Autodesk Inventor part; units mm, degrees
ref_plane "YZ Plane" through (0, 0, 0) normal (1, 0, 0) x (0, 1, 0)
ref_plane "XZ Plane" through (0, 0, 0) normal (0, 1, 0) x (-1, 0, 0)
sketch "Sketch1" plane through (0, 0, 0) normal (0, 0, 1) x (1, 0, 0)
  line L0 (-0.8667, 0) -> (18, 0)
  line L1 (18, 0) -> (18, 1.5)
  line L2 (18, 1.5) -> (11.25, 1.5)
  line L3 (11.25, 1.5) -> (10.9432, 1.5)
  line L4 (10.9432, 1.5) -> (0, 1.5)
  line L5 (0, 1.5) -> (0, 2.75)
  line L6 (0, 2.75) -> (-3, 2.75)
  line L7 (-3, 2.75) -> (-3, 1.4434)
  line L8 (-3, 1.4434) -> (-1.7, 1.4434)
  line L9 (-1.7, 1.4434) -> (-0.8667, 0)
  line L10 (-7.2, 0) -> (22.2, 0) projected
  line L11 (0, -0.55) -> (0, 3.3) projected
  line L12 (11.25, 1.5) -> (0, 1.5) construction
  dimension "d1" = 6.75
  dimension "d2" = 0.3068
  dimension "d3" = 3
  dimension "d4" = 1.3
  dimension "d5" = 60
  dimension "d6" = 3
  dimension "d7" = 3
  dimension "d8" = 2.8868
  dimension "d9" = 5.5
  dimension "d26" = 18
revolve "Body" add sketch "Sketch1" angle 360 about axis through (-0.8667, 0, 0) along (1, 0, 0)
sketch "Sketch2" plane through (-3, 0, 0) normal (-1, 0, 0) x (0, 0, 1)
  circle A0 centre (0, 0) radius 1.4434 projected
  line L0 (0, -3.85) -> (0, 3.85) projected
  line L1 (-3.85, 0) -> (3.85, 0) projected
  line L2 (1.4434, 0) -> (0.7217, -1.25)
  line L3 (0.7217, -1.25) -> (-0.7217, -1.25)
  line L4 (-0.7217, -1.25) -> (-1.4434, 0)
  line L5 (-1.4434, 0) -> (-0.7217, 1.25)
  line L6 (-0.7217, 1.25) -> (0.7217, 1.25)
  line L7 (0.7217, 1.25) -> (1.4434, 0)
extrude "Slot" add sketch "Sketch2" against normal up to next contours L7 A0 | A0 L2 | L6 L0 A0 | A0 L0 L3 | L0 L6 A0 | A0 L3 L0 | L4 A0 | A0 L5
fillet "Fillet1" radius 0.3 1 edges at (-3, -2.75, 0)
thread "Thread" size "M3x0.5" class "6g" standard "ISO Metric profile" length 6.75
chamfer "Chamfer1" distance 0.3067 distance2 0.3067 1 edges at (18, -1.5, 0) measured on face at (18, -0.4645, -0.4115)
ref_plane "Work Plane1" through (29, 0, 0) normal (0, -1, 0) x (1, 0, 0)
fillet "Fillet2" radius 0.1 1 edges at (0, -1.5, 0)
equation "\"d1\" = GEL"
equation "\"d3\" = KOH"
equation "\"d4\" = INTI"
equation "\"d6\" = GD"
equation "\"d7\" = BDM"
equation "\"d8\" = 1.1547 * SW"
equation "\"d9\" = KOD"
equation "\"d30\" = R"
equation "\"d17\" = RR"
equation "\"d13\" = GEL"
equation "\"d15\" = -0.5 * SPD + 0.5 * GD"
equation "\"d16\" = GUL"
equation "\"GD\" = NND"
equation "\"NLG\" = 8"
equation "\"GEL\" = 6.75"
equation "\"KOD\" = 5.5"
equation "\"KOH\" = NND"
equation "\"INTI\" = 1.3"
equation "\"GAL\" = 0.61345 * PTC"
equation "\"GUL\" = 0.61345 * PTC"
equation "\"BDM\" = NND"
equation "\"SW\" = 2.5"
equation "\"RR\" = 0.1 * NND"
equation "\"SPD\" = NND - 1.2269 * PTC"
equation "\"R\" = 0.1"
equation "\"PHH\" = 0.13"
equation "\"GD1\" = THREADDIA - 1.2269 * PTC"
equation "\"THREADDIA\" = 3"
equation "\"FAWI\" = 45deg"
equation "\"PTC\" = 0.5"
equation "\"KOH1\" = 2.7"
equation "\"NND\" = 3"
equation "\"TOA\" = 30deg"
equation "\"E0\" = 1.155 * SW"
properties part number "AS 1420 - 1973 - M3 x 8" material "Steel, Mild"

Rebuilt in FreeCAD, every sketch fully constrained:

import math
import FreeCAD as App
import Part
import Sketcher
Q = App.Units.Quantity


def edges_at(feature, points):
    """Names of the edges that pass closest to the given points."""
    edges = feature.Shape.Edges
    near = lambda p: min(range(len(edges)), key=lambda i: edges[i].distToShape(Part.Vertex(*p))[0])
    return sorted({f"Edge{near(p) + 1}" for p in points})

doc = App.newDocument("Part")
params = doc.addObject("Spreadsheet::Sheet", "Params")
for row, (alias, value) in enumerate([
    ("sketch1_width", "18 mm"),
    ("sketch1_width2", "3 mm"),
    ("sketch1_width3", "1.3 mm"),
    ("sketch1_height", "1.5 mm"),
    ("sketch1_height2", "1.25 mm"),
    ("revolution_angle", "360 deg"),
    ("fillet_radius", "0.3 mm"),
    ("chamfer_size", "0.3067 mm"),
    ("chamfer_size2", "0.3067 mm"),
    ("fillet2_radius", "0.1 mm"),
], start=1):
    params.set(f"A{row}", alias)
    params.set(f"B{row}", "=" + value)
    params.setAlias(f"B{row}", alias)

body = doc.addObject("PartDesign::Body", "Body")

sketch1 = body.newObject("Sketcher::SketchObject", "Sketch")
sketch1.AttachmentSupport = (doc.getObject("XY_Plane"), [""])
sketch1.MapMode = "FlatFace"
sketch1.addGeometry([
    Part.LineSegment(App.Vector(-1.7, 1.4434, 0), App.Vector(-0.8667, 0, 0)),
    Part.LineSegment(App.Vector(-0.8667, 0, 0), App.Vector(18, 0, 0)),
    Part.LineSegment(App.Vector(18, 0, 0), App.Vector(18, 1.5, 0)),
    Part.LineSegment(App.Vector(18, 1.5, 0), App.Vector(0, 1.5, 0)),
    Part.LineSegment(App.Vector(0, 1.5, 0), App.Vector(0, 2.75, 0)),
    Part.LineSegment(App.Vector(0, 2.75, 0), App.Vector(-3, 2.75, 0)),
    Part.LineSegment(App.Vector(-3, 2.75, 0), App.Vector(-3, 1.4434, 0)),
    Part.LineSegment(App.Vector(-3, 1.4434, 0), App.Vector(-1.7, 1.4434, 0)),
], False)
sketch1.addConstraint([
    Sketcher.Constraint("Coincident", 0, 2, 1, 1),
    Sketcher.Constraint("Coincident", 1, 2, 2, 1),
    Sketcher.Constraint("Coincident", 2, 2, 3, 1),
    Sketcher.Constraint("Coincident", 3, 2, 4, 1),
    Sketcher.Constraint("Coincident", 4, 2, 5, 1),
    Sketcher.Constraint("Coincident", 5, 2, 6, 1),
    Sketcher.Constraint("Coincident", 6, 2, 7, 1),
    Sketcher.Constraint("Coincident", 7, 2, 0, 1),
    Sketcher.Constraint("Horizontal", 1),
    Sketcher.Constraint("Vertical", 2),
    Sketcher.Constraint("Horizontal", 3),
    Sketcher.Constraint("Vertical", 4),
    Sketcher.Constraint("Horizontal", 5),
    Sketcher.Constraint("Vertical", 6),
    Sketcher.Constraint("Horizontal", 7),
    Sketcher.Constraint("PointOnObject", 0, 2, -1),
    Sketcher.Constraint("PointOnObject", 3, 2, -2),
    Sketcher.Constraint("DistanceX", 3, 2, 3, 1, Q("18 mm")),
    Sketcher.Constraint("DistanceX", 5, 2, 5, 1, Q("3 mm")),
    Sketcher.Constraint("DistanceX", 7, 1, 7, 2, Q("1.3 mm")),
    Sketcher.Constraint("DistanceY", 2, 1, 2, 2, Q("1.5 mm")),
    Sketcher.Constraint("DistanceY", 4, 1, 4, 2, Q("1.25 mm")),
    Sketcher.Constraint("DistanceX", 1, 1, 1, 2, Q("18.8667 mm")),
    Sketcher.Constraint("DistanceY", 6, 2, 6, 1, Q("1.3066 mm")),
])
sketch1.setExpression("Constraints[17]", "Params.sketch1_width")
sketch1.setExpression("Constraints[18]", "Params.sketch1_width2")
sketch1.setExpression("Constraints[19]", "Params.sketch1_width3")
sketch1.setExpression("Constraints[20]", "Params.sketch1_height")
sketch1.setExpression("Constraints[21]", "Params.sketch1_height2")
revolution = body.newObject("PartDesign::Revolution", "Revolution")
revolution.Profile = sketch1
revolution.ReferenceAxis = (sketch1, ["H_Axis"])
revolution.setExpression("Angle", "Params.revolution_angle")

sketch2 = body.newObject("Sketcher::SketchObject", "Sketch001")
sketch2.AttachmentSupport = (doc.getObject("YZ_Plane"), [""])
sketch2.MapMode = "FlatFace"
sketch2.AttachmentOffset = App.Placement(App.Vector(0, 0, -3), App.Rotation())
sketch2.addGeometry([
    Part.LineSegment(App.Vector(1.25, 0.7217, 0), App.Vector(0, 1.4434, 0)),
    Part.ArcOfCircle(Part.Circle(App.Vector(0, 0, 0), App.Vector(0, 0, 1), 1.4434), math.radians(30.000418), math.radians(90)),
    Part.ArcOfCircle(Part.Circle(App.Vector(0, 0, 0), App.Vector(0, 0, 1), 1.4434), math.radians(90), math.radians(149.999582)),
    Part.LineSegment(App.Vector(0, 1.4434, 0), App.Vector(-1.25, 0.7217, 0)),
    Part.ArcOfCircle(Part.Circle(App.Vector(0, 0, 0), App.Vector(0, 0, 1), 1.4434), math.radians(-30.000418), math.radians(30.000418)),
    Part.LineSegment(App.Vector(1.25, 0.7217, 0), App.Vector(1.25, -0.7217, 0)),
    Part.LineSegment(App.Vector(-1.25, 0.7217, 0), App.Vector(-1.25, -0.7217, 0)),
    Part.ArcOfCircle(Part.Circle(App.Vector(0, 0, 0), App.Vector(0, 0, 1), 1.4434), math.radians(149.999582), math.radians(210.000418)),
    Part.LineSegment(App.Vector(-1.25, -0.7217, 0), App.Vector(0, -1.4434, 0)),
    Part.ArcOfCircle(Part.Circle(App.Vector(0, 0, 0), App.Vector(0, 0, 1), 1.4434), math.radians(-149.999582), math.radians(-90)),
    Part.ArcOfCircle(Part.Circle(App.Vector(0, 0, 0), App.Vector(0, 0, 1), 1.4434), math.radians(-90), math.radians(-30.000418)),
    Part.LineSegment(App.Vector(0, -1.4434, 0), App.Vector(1.25, -0.7217, 0)),
], False)
sketch2.addConstraint([
    Sketcher.Constraint("Coincident", 0, 1, 1, 1),
    Sketcher.Constraint("Coincident", 1, 2, 0, 2),
    Sketcher.Constraint("Coincident", 2, 1, 3, 1),
    Sketcher.Constraint("Coincident", 3, 2, 2, 2),
    Sketcher.Constraint("Coincident", 4, 1, 5, 2),
    Sketcher.Constraint("Coincident", 5, 1, 4, 2),
    Sketcher.Constraint("Coincident", 6, 1, 7, 1),
    Sketcher.Constraint("Coincident", 7, 2, 6, 2),
    Sketcher.Constraint("Coincident", 8, 1, 9, 1),
    Sketcher.Constraint("Coincident", 9, 2, 8, 2),
    Sketcher.Constraint("Coincident", 10, 1, 11, 1),
    Sketcher.Constraint("Coincident", 11, 2, 10, 2),
    Sketcher.Constraint("Vertical", 5),
    Sketcher.Constraint("Vertical", 6),
    Sketcher.Constraint("Coincident", 1, 3, -1, 1),
    Sketcher.Constraint("Coincident", 2, 3, -1, 1),
    Sketcher.Constraint("Coincident", 4, 3, -1, 1),
    Sketcher.Constraint("Coincident", 7, 3, -1, 1),
    Sketcher.Constraint("Coincident", 9, 3, -1, 1),
    Sketcher.Constraint("Coincident", 10, 3, -1, 1),
    Sketcher.Constraint("Coincident", 2, 1, 1, 2),
    Sketcher.Constraint("Coincident", 5, 1, 0, 1),
    Sketcher.Constraint("Coincident", 6, 1, 3, 2),
    Sketcher.Constraint("Coincident", 8, 1, 7, 2),
    Sketcher.Constraint("Coincident", 10, 1, 9, 2),
    Sketcher.Constraint("PointOnObject", 1, 2, -2),
    Sketcher.Constraint("PointOnObject", 9, 2, -2),
    Sketcher.Constraint("Parallel", 0, 8),
    Sketcher.Constraint("Parallel", 3, 11),
    Sketcher.Constraint("Angle", 0, Q("149.9996 deg")),
    Sketcher.Constraint("Radius", 1, Q("1.4434 mm")),
])
pad1 = body.newObject("PartDesign::Pad", "Pad")
pad1.Profile = sketch2
pad1.Type = "UpToFirst"
doc.recompute()

fillet = body.newObject("PartDesign::Fillet", "Fillet")
fillet.Base = (pad1, edges_at(pad1, [(-3, -2.75, 0)]))
fillet.setExpression("Radius", "Params.fillet_radius")
doc.recompute()

chamfer = body.newObject("PartDesign::Chamfer", "Chamfer")
chamfer.Base = (fillet, edges_at(fillet, [(18, -1.5, 0)]))
chamfer.ChamferType = "Two distances"
chamfer.setExpression("Size", "Params.chamfer_size")
chamfer.setExpression("Size2", "Params.chamfer_size2")
doc.recompute()

fillet2 = body.newObject("PartDesign::Fillet", "Fillet001")
fillet2.Base = (chamfer, edges_at(chamfer, [(0, -1.5, 0)]))
fillet2.setExpression("Radius", "Params.fillet2_radius")

doc.recompute()
